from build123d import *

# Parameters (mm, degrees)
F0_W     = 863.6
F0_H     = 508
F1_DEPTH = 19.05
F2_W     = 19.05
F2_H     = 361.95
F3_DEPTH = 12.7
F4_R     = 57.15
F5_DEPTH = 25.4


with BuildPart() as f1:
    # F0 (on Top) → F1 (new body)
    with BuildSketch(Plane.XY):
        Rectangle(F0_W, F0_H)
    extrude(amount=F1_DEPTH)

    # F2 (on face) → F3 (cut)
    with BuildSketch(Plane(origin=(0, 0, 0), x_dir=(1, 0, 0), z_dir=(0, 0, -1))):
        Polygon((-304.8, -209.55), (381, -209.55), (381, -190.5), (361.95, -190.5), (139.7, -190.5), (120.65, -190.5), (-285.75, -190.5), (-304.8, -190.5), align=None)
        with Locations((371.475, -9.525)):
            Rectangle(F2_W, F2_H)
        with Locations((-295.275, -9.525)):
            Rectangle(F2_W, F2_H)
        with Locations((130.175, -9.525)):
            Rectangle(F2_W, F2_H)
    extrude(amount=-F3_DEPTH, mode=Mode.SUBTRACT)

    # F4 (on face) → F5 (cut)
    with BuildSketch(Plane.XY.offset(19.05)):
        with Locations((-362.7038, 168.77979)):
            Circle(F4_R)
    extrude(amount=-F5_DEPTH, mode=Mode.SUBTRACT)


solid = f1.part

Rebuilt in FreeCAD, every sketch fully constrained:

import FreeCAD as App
import Part
import Sketcher
Q = App.Units.Quantity

doc = App.newDocument("Part")
body = doc.addObject("PartDesign::Body", "Body")

# Sketch on XY plane
sketch1 = body.newObject("Sketcher::SketchObject", "Sketch")
sketch1.AttachmentSupport = (doc.getObject("XY_Plane"), [""])
sketch1.MapMode = "FlatFace"
sketch1.addGeometry(Part.LineSegment(App.Vector(-432, 254, 0), App.Vector(-432, -254, 0)), False)
sketch1.addGeometry(Part.LineSegment(App.Vector(-432, -254, 0), App.Vector(432, -254, 0)), False)
sketch1.addGeometry(Part.LineSegment(App.Vector(432, -254, 0), App.Vector(432, 254, 0)), False)
sketch1.addGeometry(Part.LineSegment(App.Vector(432, 254, 0), App.Vector(-432, 254, 0)), False)
sketch1.addConstraint(Sketcher.Constraint("Coincident", 0, 2, 1, 1))
sketch1.addConstraint(Sketcher.Constraint("Coincident", 1, 2, 2, 1))
sketch1.addConstraint(Sketcher.Constraint("Coincident", 2, 2, 3, 1))
sketch1.addConstraint(Sketcher.Constraint("Coincident", 3, 2, 0, 1))
sketch1.addConstraint(Sketcher.Constraint("Vertical", 0))
sketch1.addConstraint(Sketcher.Constraint("Horizontal", 1))
sketch1.addConstraint(Sketcher.Constraint("Vertical", 2))
sketch1.addConstraint(Sketcher.Constraint("Horizontal", 3))
sketch1.addConstraint(Sketcher.Constraint("Symmetric", 0, 2, 2, 2, -1, 1))
sketch1.addConstraint(Sketcher.Constraint("DistanceX", 1, 1, 1, 2, Q("34 in")))
sketch1.addConstraint(Sketcher.Constraint("DistanceY", 0, 2, 0, 1, Q("20 in")))
pad1 = body.newObject("PartDesign::Pad", "Pad")
pad1.Profile = sketch1
pad1.Length = Q("0.75 in")

# Sketch on XY plane
sketch2 = body.newObject("Sketcher::SketchObject", "Sketch001")
sketch2.AttachmentSupport = (doc.getObject("XY_Plane"), [""])
sketch2.MapMode = "FlatFace"
sketch2.addGeometry(Part.LineSegment(App.Vector(-305, 210, 0), App.Vector(381, 210, 0)), False)
sketch2.addGeometry(Part.LineSegment(App.Vector(381, 210, 0), App.Vector(381, -171, 0)), False)
sketch2.addGeometry(Part.LineSegment(App.Vector(381, -171, 0), App.Vector(362, -171, 0)), False)
sketch2.addGeometry(Part.LineSegment(App.Vector(362, -171, 0), App.Vector(362, 190, 0)), False)
sketch2.addGeometry(Part.LineSegment(App.Vector(362, 190, 0), App.Vector(140, 190, 0)), False)
sketch2.addGeometry(Part.LineSegment(App.Vector(140, 190, 0), App.Vector(140, -171, 0)), False)
sketch2.addGeometry(Part.LineSegment(App.Vector(140, -171, 0), App.Vector(121, -171, 0)), False)
sketch2.addGeometry(Part.LineSegment(App.Vector(121, -171, 0), App.Vector(121, 190, 0)), False)
sketch2.addGeometry(Part.LineSegment(App.Vector(121, 190, 0), App.Vector(-286, 190, 0)), False)
sketch2.addGeometry(Part.LineSegment(App.Vector(-286, 190, 0), App.Vector(-286, -171, 0)), False)
sketch2.addGeometry(Part.LineSegment(App.Vector(-286, -171, 0), App.Vector(-305, -171, 0)), False)
sketch2.addGeometry(Part.LineSegment(App.Vector(-305, -171, 0), App.Vector(-305, 210, 0)), False)
sketch2.addConstraint(Sketcher.Constraint("Coincident", 0, 2, 1, 1))
sketch2.addConstraint(Sketcher.Constraint("Coincident", 1, 2, 2, 1))
sketch2.addConstraint(Sketcher.Constraint("Coincident", 2, 2, 3, 1))
sketch2.addConstraint(Sketcher.Constraint("Coincident", 3, 2, 4, 1))
sketch2.addConstraint(Sketcher.Constraint("Coincident", 4, 2, 5, 1))
sketch2.addConstraint(Sketcher.Constraint("Coincident", 5, 2, 6, 1))
sketch2.addConstraint(Sketcher.Constraint("Coincident", 6, 2, 7, 1))
sketch2.addConstraint(Sketcher.Constraint("Coincident", 7, 2, 8, 1))
sketch2.addConstraint(Sketcher.Constraint("Coincident", 8, 2, 9, 1))
sketch2.addConstraint(Sketcher.Constraint("Coincident", 9, 2, 10, 1))
sketch2.addConstraint(Sketcher.Constraint("Coincident", 10, 2, 11, 1))
sketch2.addConstraint(Sketcher.Constraint("Coincident", 11, 2, 0, 1))
sketch2.addConstraint(Sketcher.Constraint("Horizontal", 0))
sketch2.addConstraint(Sketcher.Constraint("Vertical", 1))
sketch2.addConstraint(Sketcher.Constraint("Horizontal", 2))
sketch2.addConstraint(Sketcher.Constraint("Vertical", 3))
sketch2.addConstraint(Sketcher.Constraint("Horizontal", 4))
sketch2.addConstraint(Sketcher.Constraint("Vertical", 5))
sketch2.addConstraint(Sketcher.Constraint("Horizontal", 6))
sketch2.addConstraint(Sketcher.Constraint("Vertical", 7))
sketch2.addConstraint(Sketcher.Constraint("Horizontal", 8))
sketch2.addConstraint(Sketcher.Constraint("Vertical", 9))
sketch2.addConstraint(Sketcher.Constraint("Horizontal", 10))
sketch2.addConstraint(Sketcher.Constraint("Vertical", 11))
sketch2.addConstraint(Sketcher.Constraint("Horizontal", 2, 2, 5, 2))
sketch2.addConstraint(Sketcher.Constraint("Horizontal", 4, 2, 7, 2))
sketch2.addConstraint(Sketcher.Constraint("Horizontal", 6, 2, 9, 2))
sketch2.addConstraint(Sketcher.Constraint("Equal", 2, 6))
sketch2.addConstraint(Sketcher.Constraint("Equal", 6, 10))
sketch2.addConstraint(Sketcher.Constraint("DistanceX", 0, 1, 0, 2, Q("27 in")))
sketch2.addConstraint(Sketcher.Constraint("DistanceX", 8, 2, 8, 1, Q("16 in")))
sketch2.addConstraint(Sketcher.Constraint("DistanceY", 1, 2, 1, 1, Q("15 in")))
sketch2.addConstraint(Sketcher.Constraint("DistanceX", -1, 1, 0, 2, Q("15 in")))
sketch2.addConstraint(Sketcher.Constraint("DistanceX", 2, 2, 2, 1, Q("0.75 in")))
sketch2.addConstraint(Sketcher.Constraint("DistanceY", 3, 1, 3, 2, Q("14.25 in")))
sketch2.addConstraint(Sketcher.Constraint("DistanceY", -1, 1, 3, 2, Q("7.5 in")))
pocket1 = body.newObject("PartDesign::Pocket", "Pocket")
pocket1.Profile = sketch2
pocket1.Length = Q("0.5 in")
pocket1.Reversed = True

# Sketch on XY plane
sketch3 = body.newObject("Sketcher::SketchObject", "Sketch002")
sketch3.AttachmentSupport = (doc.getObject("XY_Plane"), [""])
sketch3.MapMode = "FlatFace"
sketch3.AttachmentOffset = App.Placement(App.Vector(0, 0, 0.75 * 25.4), App.Rotation())
sketch3.addGeometry(Part.Circle(App.Vector(-363, 169, 0), App.Vector(0, 0, 1), 57), False)
sketch3.addConstraint(Sketcher.Constraint("Diameter", 0, Q("4.5 in")))
sketch3.addConstraint(Sketcher.Constraint("DistanceX", 0, 3, -1, 1, 362.7038))
sketch3.addConstraint(Sketcher.Constraint("DistanceY", -1, 1, 0, 3, 168.77979))
pocket2 = body.newObject("PartDesign::Pocket", "Pocket001")
pocket2.Profile = sketch3
pocket2.Length = Q("1 in")

doc.recompute()
